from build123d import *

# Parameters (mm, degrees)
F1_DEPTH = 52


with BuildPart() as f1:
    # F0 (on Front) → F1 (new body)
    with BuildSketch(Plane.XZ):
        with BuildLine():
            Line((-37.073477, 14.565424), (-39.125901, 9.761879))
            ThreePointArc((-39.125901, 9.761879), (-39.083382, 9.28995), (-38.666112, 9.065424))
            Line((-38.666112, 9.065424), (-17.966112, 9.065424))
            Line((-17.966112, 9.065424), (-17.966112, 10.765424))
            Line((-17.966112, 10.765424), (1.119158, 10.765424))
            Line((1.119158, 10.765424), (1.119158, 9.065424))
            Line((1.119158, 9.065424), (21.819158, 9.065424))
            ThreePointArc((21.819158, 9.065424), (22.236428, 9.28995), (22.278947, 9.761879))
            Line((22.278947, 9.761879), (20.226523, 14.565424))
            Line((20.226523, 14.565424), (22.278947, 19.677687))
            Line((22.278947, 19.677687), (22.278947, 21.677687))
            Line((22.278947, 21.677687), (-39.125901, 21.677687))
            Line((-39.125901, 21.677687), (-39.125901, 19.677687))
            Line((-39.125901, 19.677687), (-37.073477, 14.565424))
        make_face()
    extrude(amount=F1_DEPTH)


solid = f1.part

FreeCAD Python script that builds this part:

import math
import FreeCAD as App
import Part
import Sketcher

doc = App.newDocument("Part")
body = doc.addObject("PartDesign::Body", "Body")

# Sketch on XZ plane
sketch1 = body.newObject("Sketcher::SketchObject", "Sketch")
sketch1.AttachmentSupport = (doc.getObject("XZ_Plane"), [""])
sketch1.MapMode = "FlatFace"
sketch1.addGeometry(Part.LineSegment(App.Vector(-37.1, 14.6, 0), App.Vector(-39.1, 9.8, 0)), False)
sketch1.addGeometry(Part.ArcOfCircle(Part.Circle(App.Vector(-38.7, 9.6, 0), App.Vector(0, 0, 1), 0.5), math.radians(157), math.radians(270)), False)
sketch1.addGeometry(Part.LineSegment(App.Vector(-38.7, 9.1, 0), App.Vector(-18, 9.1, 0)), False)
sketch1.addGeometry(Part.LineSegment(App.Vector(-18, 9.1, 0), App.Vector(-18, 10.8, 0)), False)
sketch1.addGeometry(Part.LineSegment(App.Vector(-18, 10.8, 0), App.Vector(1.1, 10.8, 0)), False)
sketch1.addGeometry(Part.LineSegment(App.Vector(1.1, 10.8, 0), App.Vector(1.1, 9.1, 0)), False)
sketch1.addGeometry(Part.LineSegment(App.Vector(1.1, 9.1, 0), App.Vector(21.8, 9.1, 0)), False)
sketch1.addGeometry(Part.ArcOfCircle(Part.Circle(App.Vector(21.8, 9.6, 0), App.Vector(0, 0, 1), 0.5), math.radians(-90), math.radians(23)), False)
sketch1.addGeometry(Part.LineSegment(App.Vector(22.3, 9.8, 0), App.Vector(20.2, 14.6, 0)), False)
sketch1.addGeometry(Part.LineSegment(App.Vector(20.2, 14.6, 0), App.Vector(22.3, 19.7, 0)), False)
sketch1.addGeometry(Part.LineSegment(App.Vector(22.3, 19.7, 0), App.Vector(22.3, 21.7, 0)), False)
sketch1.addGeometry(Part.LineSegment(App.Vector(22.3, 21.7, 0), App.Vector(-39.1, 21.7, 0)), False)
sketch1.addGeometry(Part.LineSegment(App.Vector(-39.1, 21.7, 0), App.Vector(-39.1, 19.7, 0)), False)
sketch1.addGeometry(Part.LineSegment(App.Vector(-39.1, 19.7, 0), App.Vector(-37.1, 14.6, 0)), False)
sketch1.addConstraint(Sketcher.Constraint("Tangent", 0, 2, 1, 1))
sketch1.addConstraint(Sketcher.Constraint("Tangent", 1, 2, 2, 1))
sketch1.addConstraint(Sketcher.Constraint("Coincident", 2, 2, 3, 1))
sketch1.addConstraint(Sketcher.Constraint("Coincident", 3, 2, 4, 1))
sketch1.addConstraint(Sketcher.Constraint("Coincident", 4, 2, 5, 1))
sketch1.addConstraint(Sketcher.Constraint("Coincident", 5, 2, 6, 1))
sketch1.addConstraint(Sketcher.Constraint("Tangent", 6, 2, 7, 1))
sketch1.addConstraint(Sketcher.Constraint("Tangent", 7, 2, 8, 1))
sketch1.addConstraint(Sketcher.Constraint("Coincident", 8, 2, 9, 1))
sketch1.addConstraint(Sketcher.Constraint("Coincident", 9, 2, 10, 1))
sketch1.addConstraint(Sketcher.Constraint("Coincident", 10, 2, 11, 1))
sketch1.addConstraint(Sketcher.Constraint("Coincident", 11, 2, 12, 1))
sketch1.addConstraint(Sketcher.Constraint("Coincident", 12, 2, 13, 1))
sketch1.addConstraint(Sketcher.Constraint("Coincident", 13, 2, 0, 1))
sketch1.addConstraint(Sketcher.Constraint("Horizontal", 2))
sketch1.addConstraint(Sketcher.Constraint("Vertical", 3))
sketch1.addConstraint(Sketcher.Constraint("Horizontal", 4))
sketch1.addConstraint(Sketcher.Constraint("Vertical", 5))
sketch1.addConstraint(Sketcher.Constraint("Horizontal", 6))
sketch1.addConstraint(Sketcher.Constraint("Vertical", 10))
sketch1.addConstraint(Sketcher.Constraint("Horizontal", 11))
sketch1.addConstraint(Sketcher.Constraint("Vertical", 12))
sketch1.addConstraint(Sketcher.Constraint("Equal", 1, 7))
sketch1.addConstraint(Sketcher.Constraint("Horizontal", 1, 3, 7, 3))
sketch1.addConstraint(Sketcher.Constraint("Horizontal", 0, 2, 7, 2))
sketch1.addConstraint(Sketcher.Constraint("Horizontal", 9, 2, 12, 2))
sketch1.addConstraint(Sketcher.Constraint("Horizontal", 8, 2, 13, 2))
sketch1.addConstraint(Sketcher.Constraint("Vertical", 7, 2, 9, 2))
sketch1.addConstraint(Sketcher.Constraint("Vertical", 0, 2, 11, 2))
sketch1.addConstraint(Sketcher.Constraint("Equal", 2, 6))
sketch1.addConstraint(Sketcher.Constraint("Radius", 1, 0.5))
sketch1.addConstraint(Sketcher.Constraint("DistanceY", 10, 1, 10, 2, 2.0))
sketch1.addConstraint(Sketcher.Constraint("DistanceX", 2, 1, 2, 2, 20.7))
sketch1.addConstraint(Sketcher.Constraint("DistanceY", 3, 1, 3, 2, 1.7))
sketch1.addConstraint(Sketcher.Constraint("DistanceY", 7, 3, 8, 2, 5.0))
sketch1.addConstraint(Sketcher.Constraint("DistanceX", 4, 1, 4, 2, 19.08527))
sketch1.addConstraint(Sketcher.Constraint("DistanceX", 0, 2, -1, 1, 39.125901))
sketch1.addConstraint(Sketcher.Constraint("DistanceX", 11, 2, 11, 1, 61.404848))
sketch1.addConstraint(Sketcher.Constraint("DistanceY", -1, 1, 0, 2, 9.761879))
sketch1.addConstraint(Sketcher.Constraint("DistanceY", 7, 2, 9, 2, 9.915808))
pad1 = body.newObject("PartDesign::Pad", "Pad")
pad1.Profile = sketch1
pad1.Length = 52

doc.recompute()
